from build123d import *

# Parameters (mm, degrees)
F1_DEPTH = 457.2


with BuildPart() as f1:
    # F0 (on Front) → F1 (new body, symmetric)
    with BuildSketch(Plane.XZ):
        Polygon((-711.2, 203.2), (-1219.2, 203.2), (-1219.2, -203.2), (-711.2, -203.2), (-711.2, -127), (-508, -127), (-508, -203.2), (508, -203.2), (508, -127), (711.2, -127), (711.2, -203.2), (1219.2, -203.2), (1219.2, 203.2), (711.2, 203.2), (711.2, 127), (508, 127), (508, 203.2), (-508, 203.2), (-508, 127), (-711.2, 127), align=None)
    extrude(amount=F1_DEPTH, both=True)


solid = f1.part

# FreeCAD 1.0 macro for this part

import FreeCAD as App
import Part
import Sketcher

V = App.Vector
Q = App.Units.Quantity

doc = App.newDocument("Part")
body = doc.addObject("PartDesign::Body", "Body")

# Sketch on XZ plane
sketch1 = body.newObject("Sketcher::SketchObject", "Sketch")
sketch1.AttachmentSupport = (doc.getObject("XZ_Plane"), [""])
sketch1.MapMode = "FlatFace"
sketch1.addGeometry(Part.LineSegment(V(-711, 203, 0), V(-1219, 203, 0)), False)
sketch1.addGeometry(Part.LineSegment(V(-1219, 203, 0), V(-1219, -203, 0)), False)
sketch1.addGeometry(Part.LineSegment(V(-1219, -203, 0), V(-711, -203, 0)), False)
sketch1.addGeometry(Part.LineSegment(V(-711, -203, 0), V(-711, -127, 0)), False)
sketch1.addGeometry(Part.LineSegment(V(-711, -127, 0), V(-508, -127, 0)), False)
sketch1.addGeometry(Part.LineSegment(V(-508, -127, 0), V(-508, -203, 0)), False)
sketch1.addGeometry(Part.LineSegment(V(-508, -203, 0), V(508, -203, 0)), False)
sketch1.addGeometry(Part.LineSegment(V(508, -203, 0), V(508, -127, 0)), False)
sketch1.addGeometry(Part.LineSegment(V(508, -127, 0), V(711, -127, 0)), False)
sketch1.addGeometry(Part.LineSegment(V(711, -127, 0), V(711, -203, 0)), False)
sketch1.addGeometry(Part.LineSegment(V(711, -203, 0), V(1219, -203, 0)), False)
sketch1.addGeometry(Part.LineSegment(V(1219, -203, 0), V(1219, 203, 0)), False)
sketch1.addGeometry(Part.LineSegment(V(1219, 203, 0), V(711, 203, 0)), False)
sketch1.addGeometry(Part.LineSegment(V(711, 203, 0), V(711, 127, 0)), False)
sketch1.addGeometry(Part.LineSegment(V(711, 127, 0), V(508, 127, 0)), False)
sketch1.addGeometry(Part.LineSegment(V(508, 127, 0), V(508, 203, 0)), False)
sketch1.addGeometry(Part.LineSegment(V(508, 203, 0), V(-508, 203, 0)), False)
sketch1.addGeometry(Part.LineSegment(V(-508, 203, 0), V(-508, 127, 0)), False)
sketch1.addGeometry(Part.LineSegment(V(-508, 127, 0), V(-711, 127, 0)), False)
sketch1.addGeometry(Part.LineSegment(V(-711, 127, 0), V(-711, 203, 0)), False)
sketch1.addConstraint(Sketcher.Constraint("Coincident", 0, 2, 1, 1))
sketch1.addConstraint(Sketcher.Constraint("Coincident", 1, 2, 2, 1))
sketch1.addConstraint(Sketcher.Constraint("Coincident", 2, 2, 3, 1))
sketch1.addConstraint(Sketcher.Constraint("Coincident", 3, 2, 4, 1))
sketch1.addConstraint(Sketcher.Constraint("Coincident", 4, 2, 5, 1))
sketch1.addConstraint(Sketcher.Constraint("Coincident", 5, 2, 6, 1))
sketch1.addConstraint(Sketcher.Constraint("Coincident", 6, 2, 7, 1))
sketch1.addConstraint(Sketcher.Constraint("Coincident", 7, 2, 8, 1))
sketch1.addConstraint(Sketcher.Constraint("Coincident", 8, 2, 9, 1))
sketch1.addConstraint(Sketcher.Constraint("Coincident", 9, 2, 10, 1))
sketch1.addConstraint(Sketcher.Constraint("Coincident", 10, 2, 11, 1))
sketch1.addConstraint(Sketcher.Constraint("Coincident", 11, 2, 12, 1))
sketch1.addConstraint(Sketcher.Constraint("Coincident", 12, 2, 13, 1))
sketch1.addConstraint(Sketcher.Constraint("Coincident", 13, 2, 14, 1))
sketch1.addConstraint(Sketcher.Constraint("Coincident", 14, 2, 15, 1))
sketch1.addConstraint(Sketcher.Constraint("Coincident", 15, 2, 16, 1))
sketch1.addConstraint(Sketcher.Constraint("Coincident", 16, 2, 17, 1))
sketch1.addConstraint(Sketcher.Constraint("Coincident", 17, 2, 18, 1))
sketch1.addConstraint(Sketcher.Constraint("Coincident", 18, 2, 19, 1))
sketch1.addConstraint(Sketcher.Constraint("Coincident", 19, 2, 0, 1))
sketch1.addConstraint(Sketcher.Constraint("Horizontal", 0))
sketch1.addConstraint(Sketcher.Constraint("Vertical", 1))
sketch1.addConstraint(Sketcher.Constraint("Horizontal", 2))
sketch1.addConstraint(Sketcher.Constraint("Vertical", 3))
sketch1.addConstraint(Sketcher.Constraint("Horizontal", 4))
sketch1.addConstraint(Sketcher.Constraint("Vertical", 5))
sketch1.addConstraint(Sketcher.Constraint("Horizontal", 6))
sketch1.addConstraint(Sketcher.Constraint("Vertical", 7))
sketch1.addConstraint(Sketcher.Constraint("Horizontal", 8))
sketch1.addConstraint(Sketcher.Constraint("Vertical", 9))
sketch1.addConstraint(Sketcher.Constraint("Horizontal", 10))
sketch1.addConstraint(Sketcher.Constraint("Vertical", 11))
sketch1.addConstraint(Sketcher.Constraint("Horizontal", 12))
sketch1.addConstraint(Sketcher.Constraint("Vertical", 13))
sketch1.addConstraint(Sketcher.Constraint("Horizontal", 14))
sketch1.addConstraint(Sketcher.Constraint("Vertical", 15))
sketch1.addConstraint(Sketcher.Constraint("Horizontal", 16))
sketch1.addConstraint(Sketcher.Constraint("Vertical", 17))
sketch1.addConstraint(Sketcher.Constraint("Horizontal", 18))
sketch1.addConstraint(Sketcher.Constraint("Vertical", 19))
sketch1.addConstraint(Sketcher.Constraint("Symmetric", 0, 2, 10, 2, -1, 1))
sketch1.addConstraint(Sketcher.Constraint("Symmetric", 2, 2, 12, 2, -1, 1))
sketch1.addConstraint(Sketcher.Constraint("Symmetric", 4, 2, 14, 2, -1, 1))
sketch1.addConstraint(Sketcher.Constraint("Symmetric", 6, 2, 16, 2, -1, 1))
sketch1.addConstraint(Sketcher.Constraint("Symmetric", 8, 2, 18, 2, -1, 1))
sketch1.addConstraint(Sketcher.Constraint("Symmetric", 4, 2, 7, 2, -2))
sketch1.addConstraint(Sketcher.Constraint("Symmetric", 2, 2, 9, 2, -2))
sketch1.addConstraint(Sketcher.Constraint("Horizontal", 2, 2, 5, 2))
sketch1.addConstraint(Sketcher.Constraint("DistanceX", 0, 2, 0, 1, Q("20 in")))
sketch1.addConstraint(Sketcher.Constraint("DistanceX", 4, 1, 4, 2, Q("8 in")))
sketch1.addConstraint(Sketcher.Constraint("DistanceX", 6, 1, 6, 2, Q("40 in")))
sketch1.addConstraint(Sketcher.Constraint("DistanceY", 1, 2, 1, 1, Q("16 in")))
sketch1.addConstraint(Sketcher.Constraint("DistanceY", 3, 1, 3, 2, Q("3 in")))
pad1 = body.newObject("PartDesign::Pad", "Pad")
pad1.Profile = sketch1
pad1.Length = Q("36 in")
pad1.Midplane = True

doc.recompute()
